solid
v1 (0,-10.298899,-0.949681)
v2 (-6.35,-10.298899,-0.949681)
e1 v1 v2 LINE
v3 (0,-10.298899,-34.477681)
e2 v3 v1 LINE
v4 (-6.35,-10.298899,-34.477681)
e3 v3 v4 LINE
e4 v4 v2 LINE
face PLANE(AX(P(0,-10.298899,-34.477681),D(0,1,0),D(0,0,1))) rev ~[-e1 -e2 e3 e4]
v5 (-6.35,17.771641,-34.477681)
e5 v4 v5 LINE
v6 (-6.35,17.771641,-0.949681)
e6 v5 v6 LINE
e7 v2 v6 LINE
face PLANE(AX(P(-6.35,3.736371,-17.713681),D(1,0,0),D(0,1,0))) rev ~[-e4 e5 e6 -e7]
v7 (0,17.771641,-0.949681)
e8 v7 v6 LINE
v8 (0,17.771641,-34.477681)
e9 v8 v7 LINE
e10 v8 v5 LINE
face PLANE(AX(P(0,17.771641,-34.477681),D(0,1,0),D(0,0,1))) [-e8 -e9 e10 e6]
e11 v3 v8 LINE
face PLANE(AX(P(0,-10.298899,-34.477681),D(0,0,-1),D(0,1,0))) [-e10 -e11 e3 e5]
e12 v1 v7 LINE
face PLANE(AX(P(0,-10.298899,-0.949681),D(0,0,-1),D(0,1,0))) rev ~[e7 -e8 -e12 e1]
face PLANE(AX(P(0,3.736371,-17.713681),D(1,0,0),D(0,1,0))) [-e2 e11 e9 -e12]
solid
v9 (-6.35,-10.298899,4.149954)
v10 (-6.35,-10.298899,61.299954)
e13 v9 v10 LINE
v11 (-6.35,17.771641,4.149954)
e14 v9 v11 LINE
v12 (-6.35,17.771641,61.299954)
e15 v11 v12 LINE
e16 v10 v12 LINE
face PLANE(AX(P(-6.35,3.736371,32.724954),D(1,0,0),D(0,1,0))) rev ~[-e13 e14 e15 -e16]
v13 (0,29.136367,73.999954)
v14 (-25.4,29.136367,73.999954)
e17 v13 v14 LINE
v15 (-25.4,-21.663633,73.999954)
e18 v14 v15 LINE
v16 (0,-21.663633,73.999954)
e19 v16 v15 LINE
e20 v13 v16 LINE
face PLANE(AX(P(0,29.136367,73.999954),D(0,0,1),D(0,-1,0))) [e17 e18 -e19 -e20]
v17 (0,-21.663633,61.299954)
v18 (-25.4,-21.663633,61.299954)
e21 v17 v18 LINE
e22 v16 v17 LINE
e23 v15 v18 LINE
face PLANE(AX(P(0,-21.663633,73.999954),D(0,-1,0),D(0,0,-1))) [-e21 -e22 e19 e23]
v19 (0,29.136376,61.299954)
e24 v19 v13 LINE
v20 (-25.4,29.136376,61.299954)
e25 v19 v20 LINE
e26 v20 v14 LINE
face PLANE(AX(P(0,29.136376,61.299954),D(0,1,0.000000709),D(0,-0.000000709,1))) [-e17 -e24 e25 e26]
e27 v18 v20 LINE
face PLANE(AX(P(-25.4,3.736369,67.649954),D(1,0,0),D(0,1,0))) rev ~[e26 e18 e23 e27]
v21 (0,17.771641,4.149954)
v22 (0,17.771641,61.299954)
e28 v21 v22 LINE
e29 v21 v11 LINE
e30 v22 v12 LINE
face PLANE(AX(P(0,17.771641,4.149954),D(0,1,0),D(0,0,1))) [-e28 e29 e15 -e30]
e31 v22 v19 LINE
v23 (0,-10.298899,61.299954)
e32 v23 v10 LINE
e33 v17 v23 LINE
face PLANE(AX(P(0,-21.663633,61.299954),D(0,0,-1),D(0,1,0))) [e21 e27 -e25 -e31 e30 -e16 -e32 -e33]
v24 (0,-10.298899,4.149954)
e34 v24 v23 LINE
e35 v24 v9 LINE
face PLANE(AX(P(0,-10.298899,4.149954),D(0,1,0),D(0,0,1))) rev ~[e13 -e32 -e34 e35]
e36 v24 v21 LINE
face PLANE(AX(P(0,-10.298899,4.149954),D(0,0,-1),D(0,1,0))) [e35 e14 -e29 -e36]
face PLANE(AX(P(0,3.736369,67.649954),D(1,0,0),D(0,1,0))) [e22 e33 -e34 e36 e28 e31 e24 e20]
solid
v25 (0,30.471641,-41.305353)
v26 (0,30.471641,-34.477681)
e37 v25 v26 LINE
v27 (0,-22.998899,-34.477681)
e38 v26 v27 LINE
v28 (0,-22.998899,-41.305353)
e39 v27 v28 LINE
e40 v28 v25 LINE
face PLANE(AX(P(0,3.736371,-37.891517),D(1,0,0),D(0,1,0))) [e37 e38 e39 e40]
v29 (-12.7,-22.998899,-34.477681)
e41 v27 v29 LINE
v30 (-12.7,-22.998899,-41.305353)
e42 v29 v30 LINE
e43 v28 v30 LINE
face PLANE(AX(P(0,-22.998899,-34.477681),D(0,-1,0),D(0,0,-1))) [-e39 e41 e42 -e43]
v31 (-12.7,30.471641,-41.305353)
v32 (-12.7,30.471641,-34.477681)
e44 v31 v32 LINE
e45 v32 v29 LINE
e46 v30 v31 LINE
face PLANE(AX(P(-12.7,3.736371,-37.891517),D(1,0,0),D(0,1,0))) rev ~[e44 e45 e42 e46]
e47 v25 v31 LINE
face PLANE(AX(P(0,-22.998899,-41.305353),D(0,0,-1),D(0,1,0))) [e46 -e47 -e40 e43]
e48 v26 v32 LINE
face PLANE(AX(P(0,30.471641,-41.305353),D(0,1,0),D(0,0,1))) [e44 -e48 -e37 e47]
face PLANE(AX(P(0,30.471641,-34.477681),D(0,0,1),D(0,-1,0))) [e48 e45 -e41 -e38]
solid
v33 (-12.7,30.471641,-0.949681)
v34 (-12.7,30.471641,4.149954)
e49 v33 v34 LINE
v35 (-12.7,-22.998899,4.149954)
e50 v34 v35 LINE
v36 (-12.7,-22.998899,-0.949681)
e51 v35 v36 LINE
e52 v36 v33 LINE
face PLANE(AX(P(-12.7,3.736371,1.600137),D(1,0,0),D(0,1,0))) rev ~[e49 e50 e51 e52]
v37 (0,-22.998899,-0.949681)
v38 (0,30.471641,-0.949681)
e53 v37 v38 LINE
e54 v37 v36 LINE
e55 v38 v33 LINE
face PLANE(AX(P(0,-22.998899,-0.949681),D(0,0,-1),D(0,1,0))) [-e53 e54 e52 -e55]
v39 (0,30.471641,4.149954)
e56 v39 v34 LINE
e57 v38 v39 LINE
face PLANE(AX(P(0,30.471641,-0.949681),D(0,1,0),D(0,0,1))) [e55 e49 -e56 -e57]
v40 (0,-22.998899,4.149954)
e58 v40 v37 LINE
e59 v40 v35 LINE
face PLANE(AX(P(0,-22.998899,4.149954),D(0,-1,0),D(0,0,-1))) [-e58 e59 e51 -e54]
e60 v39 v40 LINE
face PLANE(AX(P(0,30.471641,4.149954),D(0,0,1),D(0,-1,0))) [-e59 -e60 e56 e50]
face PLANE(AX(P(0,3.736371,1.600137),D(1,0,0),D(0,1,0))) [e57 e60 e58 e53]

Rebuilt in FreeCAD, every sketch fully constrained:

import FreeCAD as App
import Part
import Sketcher

V = App.Vector
Q = App.Units.Quantity


def add_polygon(sketch, points):
    """Adds a closed chain of lines whose ends are joined by coincident constraints."""
    first, n = sketch.GeometryCount, len(points)
    for a, b in zip(points, points[1:] + points[:1]):
        sketch.addGeometry(Part.LineSegment(App.Vector(*a, 0), App.Vector(*b, 0)), False)
    for i in range(n):
        sketch.addConstraint(Sketcher.Constraint("Coincident", first + i, 2, first + (i + 1) % n, 1))

doc = App.newDocument("Part")
params = doc.addObject("Spreadsheet::Sheet", "Params")
for row, (alias, value) in enumerate([
    ("sketch1_width", "2 in"),
    ("sketch1_height", "0.5 in"),
    ("pad1_length", "1 in"),
    ("sketch2_height", "2.25 in"),
    ("sketch2_height2", "1.32 in"),
    ("pad2_length", "0.25 in"),
    ("pad3_length", "0.5 in"),
], start=1):
    params.set(f"A{row}", alias)
    params.set(f"B{row}", "=" + value)
    params.setAlias(f"B{row}", alias)

body = doc.addObject("PartDesign::Body", "Body")
body.AllowCompound = True

sketch1 = body.newObject("Sketcher::SketchObject", "Sketch")
sketch1.AttachmentSupport = (doc.getObject("YZ_Plane"), [""])
sketch1.MapMode = "FlatFace"
add_polygon(sketch1, [(29.136367, 73.999954), (-21.663633, 73.999954), (-21.663633, 61.299954), (29.136376, 61.299954)])
sketch1.addConstraint(Sketcher.Constraint("Horizontal", 0))
sketch1.addConstraint(Sketcher.Constraint("Vertical", 1))
sketch1.addConstraint(Sketcher.Constraint("Horizontal", 2))
sketch1.addConstraint(Sketcher.Constraint("DistanceX", 0, 2, 0, 1, Q("2 in")))
sketch1.addConstraint(Sketcher.Constraint("DistanceY", 1, 2, 1, 1, Q("0.5 in")))
sketch1.addConstraint(Sketcher.Constraint("DistanceX", 2, 1, 2, 2, Q("50.800009 mm")))
sketch1.addConstraint(Sketcher.Constraint("DistanceX", 0, 2, -1, 1, Q("21.663633 mm")))
sketch1.addConstraint(Sketcher.Constraint("DistanceY", -1, 1, 0, 2, Q("73.999954 mm")))
sketch1.setExpression("Constraints[7]", "Params.sketch1_width")
sketch1.setExpression("Constraints[8]", "Params.sketch1_height")
pad1 = body.newObject("PartDesign::Pad", "Pad")
pad1.Profile = sketch1
pad1.setExpression("Length", "Params.pad1_length")
pad1.Reversed = True

sketch2 = body.newObject("Sketcher::SketchObject", "Sketch001")
sketch2.AttachmentSupport = (doc.getObject("YZ_Plane"), [""])
sketch2.MapMode = "FlatFace"
add_polygon(sketch2, [(-10.298899, 61.299954), (-10.298899, 4.149954), (17.771641, 4.149954), (17.771641, 61.299954)])
add_polygon(sketch2, [(-10.298899, -0.949681), (-10.298899, -34.477681), (17.771641, -34.477681), (17.771641, -0.949681)])
sketch2.addConstraint(Sketcher.Constraint("Vertical", 0))
sketch2.addConstraint(Sketcher.Constraint("Horizontal", 1))
sketch2.addConstraint(Sketcher.Constraint("Vertical", 2))
sketch2.addConstraint(Sketcher.Constraint("Horizontal", 3))
sketch2.addConstraint(Sketcher.Constraint("Vertical", 4))
sketch2.addConstraint(Sketcher.Constraint("Horizontal", 5))
sketch2.addConstraint(Sketcher.Constraint("Vertical", 6))
sketch2.addConstraint(Sketcher.Constraint("Horizontal", 7))
sketch2.addConstraint(Sketcher.Constraint("Vertical", 3, 2, 4, 2))
sketch2.addConstraint(Sketcher.Constraint("Vertical", 2, 2, 5, 2))
sketch2.addConstraint(Sketcher.Constraint("DistanceY", 0, 2, 0, 1, Q("2.25 in")))
sketch2.addConstraint(Sketcher.Constraint("DistanceY", 4, 2, 4, 1, Q("1.32 in")))
sketch2.addConstraint(Sketcher.Constraint("DistanceX", 1, 1, 1, 2, Q("28.07054 mm")))
sketch2.addConstraint(Sketcher.Constraint("DistanceX", 0, 2, -1, 1, Q("10.298899 mm")))
sketch2.addConstraint(Sketcher.Constraint("DistanceY", 4, 2, -1, 1, Q("34.477681 mm")))
sketch2.addConstraint(Sketcher.Constraint("DistanceY", -1, 1, 0, 2, Q("4.149954 mm")))
sketch2.setExpression("Constraints[18]", "Params.sketch2_height")
sketch2.setExpression("Constraints[19]", "Params.sketch2_height2")
pad2 = body.newObject("PartDesign::Pad", "Pad001")
pad2.Profile = sketch2
pad2.setExpression("Length", "Params.pad2_length")
pad2.Reversed = True
body2 = doc.addObject("PartDesign::Body", "Body001")
body2.AllowCompound = True

sketch3 = body2.newObject("Sketcher::SketchObject", "Sketch002")
sketch3.AttachmentSupport = (doc.getObject("YZ_Plane001"), [""])
sketch3.MapMode = "FlatFace"
add_polygon(sketch3, [(-22.998899, 4.149954), (-22.998899, -0.949681), (30.471641, -0.949681), (30.471641, 4.149954)])
add_polygon(sketch3, [(-22.998899, -34.477681), (-22.998899, -41.305353), (30.471641, -41.305353), (30.471641, -34.477681)])
sketch3.addConstraint(Sketcher.Constraint("Vertical", 0))
sketch3.addConstraint(Sketcher.Constraint("Horizontal", 1))
sketch3.addConstraint(Sketcher.Constraint("Vertical", 2))
sketch3.addConstraint(Sketcher.Constraint("Horizontal", 3))
sketch3.addConstraint(Sketcher.Constraint("Vertical", 4))
sketch3.addConstraint(Sketcher.Constraint("Horizontal", 5))
sketch3.addConstraint(Sketcher.Constraint("Vertical", 6))
sketch3.addConstraint(Sketcher.Constraint("Horizontal", 7))
sketch3.addConstraint(Sketcher.Constraint("Vertical", 3, 2, 4, 2))
sketch3.addConstraint(Sketcher.Constraint("Vertical", 2, 2, 5, 2))
sketch3.addConstraint(Sketcher.Constraint("DistanceY", 6, 2, 1, 2, Q("1.32 in")))
sketch3.addConstraint(Sketcher.Constraint("DistanceX", 1, 1, 1, 2, Q("53.47054 mm")))
sketch3.addConstraint(Sketcher.Constraint("DistanceY", 4, 2, 4, 1, Q("6.827672 mm")))
sketch3.addConstraint(Sketcher.Constraint("DistanceX", 0, 2, -1, 1, Q("22.998899 mm")))
sketch3.addConstraint(Sketcher.Constraint("DistanceY", 0, 2, 0, 1, Q("5.099635 mm")))
sketch3.addConstraint(Sketcher.Constraint("DistanceY", 0, 2, -1, 1, Q("0.949681 mm")))
pad3 = body2.newObject("PartDesign::Pad", "Pad002")
pad3.Profile = sketch3
pad3.setExpression("Length", "Params.pad3_length")
pad3.Reversed = True

doc.recompute()
